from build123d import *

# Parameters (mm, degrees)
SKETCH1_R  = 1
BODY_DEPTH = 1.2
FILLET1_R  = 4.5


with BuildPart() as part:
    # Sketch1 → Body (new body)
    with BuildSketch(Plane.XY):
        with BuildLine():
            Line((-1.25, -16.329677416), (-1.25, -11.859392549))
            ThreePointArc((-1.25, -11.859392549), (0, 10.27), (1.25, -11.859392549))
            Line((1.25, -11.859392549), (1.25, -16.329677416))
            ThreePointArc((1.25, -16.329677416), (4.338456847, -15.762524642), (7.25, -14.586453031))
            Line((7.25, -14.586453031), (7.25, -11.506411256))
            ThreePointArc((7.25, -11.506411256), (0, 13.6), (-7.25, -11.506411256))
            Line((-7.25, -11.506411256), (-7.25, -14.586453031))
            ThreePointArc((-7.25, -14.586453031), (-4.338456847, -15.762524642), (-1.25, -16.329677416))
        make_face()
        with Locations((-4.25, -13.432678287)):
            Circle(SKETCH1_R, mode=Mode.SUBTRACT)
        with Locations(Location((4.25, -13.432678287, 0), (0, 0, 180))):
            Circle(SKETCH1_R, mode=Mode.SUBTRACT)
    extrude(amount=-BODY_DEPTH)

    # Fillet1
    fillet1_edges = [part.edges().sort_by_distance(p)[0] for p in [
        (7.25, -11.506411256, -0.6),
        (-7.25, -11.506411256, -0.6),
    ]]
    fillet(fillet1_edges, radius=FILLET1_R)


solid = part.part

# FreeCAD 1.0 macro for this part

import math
import FreeCAD as App
import Part
import Sketcher

V = App.Vector
Q = App.Units.Quantity


def edges_at(feature, points):
    """Names of the edges that pass closest to the given points."""
    edges = feature.Shape.Edges
    near = lambda p: min(range(len(edges)), key=lambda i: edges[i].distToShape(Part.Vertex(*p))[0])
    return sorted({f"Edge{near(p) + 1}" for p in points})

doc = App.newDocument("Part")
params = doc.addObject("Spreadsheet::Sheet", "Params")
for row, (alias, value) in enumerate([
    ("sketch1_diameter", "2 mm"),
    ("sketch1_radius", "11.1 mm"),
    ("sketch1_radius2", "13.6 mm"),
    ("sketch1_radius3", "15.55 mm"),
    ("pad1_length", "1.2 mm"),
    ("fillet_radius", "4.5 mm"),
], start=1):
    params.set(f"A{row}", alias)
    params.set(f"B{row}", "=" + value)
    params.setAlias(f"B{row}", alias)

body = doc.addObject("PartDesign::Body", "Body")

# Sketch on XY plane
sketch1 = doc.addObject("Sketcher::SketchObject", "Sketch")
body.addObject(sketch1)
sketch1.AttachmentSupport = (doc.XY_Plane, [""])
sketch1.MapMode = "FlatFace"
sketch1.addGeometry(Part.LineSegment(V(-1.2, -16.3, 0), V(-1.2, -11.9, 0)), False)
sketch1.addGeometry(Part.ArcOfCircle(Part.Circle(V(0, -0.8, 0), V(0, 0, 1), 11.1), math.radians(-84), math.radians(264)), False)
sketch1.addGeometry(Part.LineSegment(V(1.2, -11.9, 0), V(1.2, -16.3, 0)), False)
sketch1.addGeometry(Part.ArcOfCircle(Part.Circle(V(0, -0.8, 0), V(0, 0, 1), 15.6), math.radians(-85), math.radians(-62)), False)
sketch1.addGeometry(Part.LineSegment(V(7.2, -14.6, 0), V(7.2, -11.5, 0)), False)
sketch1.addGeometry(Part.ArcOfCircle(Part.Circle(V(0, 0, 0), V(0, 0, 1), 13.6), math.radians(-58), math.radians(238)), False)
sketch1.addGeometry(Part.LineSegment(V(-7.2, -11.5, 0), V(-7.2, -14.6, 0)), False)
sketch1.addGeometry(Part.ArcOfCircle(Part.Circle(V(0, -0.8, 0), V(0, 0, 1), 15.6), math.radians(-118), math.radians(-95)), False)
sketch1.addGeometry(Part.Circle(V(-4.2, -13.4, 0), V(0, 0, 1), 1), False)
sketch1.addGeometry(Part.Circle(V(4.2, -13.4, 0), V(0, 0, 1), 1), False)
sketch1.addConstraint(Sketcher.Constraint("Coincident", 0, 2, 1, 2))
sketch1.addConstraint(Sketcher.Constraint("Coincident", 1, 1, 2, 1))
sketch1.addConstraint(Sketcher.Constraint("Coincident", 2, 2, 3, 1))
sketch1.addConstraint(Sketcher.Constraint("Coincident", 3, 2, 4, 1))
sketch1.addConstraint(Sketcher.Constraint("Coincident", 4, 2, 5, 1))
sketch1.addConstraint(Sketcher.Constraint("Coincident", 5, 2, 6, 1))
sketch1.addConstraint(Sketcher.Constraint("Coincident", 6, 2, 7, 1))
sketch1.addConstraint(Sketcher.Constraint("Coincident", 7, 2, 0, 1))
sketch1.addConstraint(Sketcher.Constraint("Vertical", 0))
sketch1.addConstraint(Sketcher.Constraint("Vertical", 2))
sketch1.addConstraint(Sketcher.Constraint("Vertical", 4))
sketch1.addConstraint(Sketcher.Constraint("Vertical", 6))
sketch1.addConstraint(Sketcher.Constraint("Coincident", 5, 3, -1, 1))
sketch1.addConstraint(Sketcher.Constraint("Coincident", 3, 3, 1, 3))
sketch1.addConstraint(Sketcher.Constraint("Coincident", 7, 3, 1, 3))
sketch1.addConstraint(Sketcher.Constraint("Equal", 3, 7))
sketch1.addConstraint(Sketcher.Constraint("Equal", 8, 9))
sketch1.addConstraint(Sketcher.Constraint("Symmetric", 8, 3, 9, 3, -2))
sketch1.addConstraint(Sketcher.Constraint("Symmetric", 0, 2, 1, 1, -2))
sketch1.addConstraint(Sketcher.Constraint("Horizontal", 4, 2, 5, 2))
sketch1.addConstraint(Sketcher.Constraint("Diameter", 8, Q("2 mm")))
sketch1.addConstraint(Sketcher.Constraint("Radius", 1, Q("11.1 mm")))
sketch1.addConstraint(Sketcher.Constraint("Radius", 5, Q("13.6 mm")))
sketch1.addConstraint(Sketcher.Constraint("Radius", 3, Q("15.55 mm")))
sketch1.addConstraint(Sketcher.Constraint("DistanceX", 8, 3, 0, 2, Q("3 mm")))
sketch1.addConstraint(Sketcher.Constraint("DistanceX", 9, 3, 3, 2, Q("3 mm")))
sketch1.addConstraint(Sketcher.Constraint("DistanceX", 8, 3, 9, 3, Q("8.5 mm")))
sketch1.addConstraint(Sketcher.Constraint("DistanceY", 1, 3, -1, 1, Q("0.83 mm")))
sketch1.addConstraint(Sketcher.Constraint("DistanceY", 2, 2, 9, 3, Q("2.896999 mm")))
sketch1.setExpression("Constraints[20]", "Params.sketch1_diameter")
sketch1.setExpression("Constraints[21]", "Params.sketch1_radius")
sketch1.setExpression("Constraints[22]", "Params.sketch1_radius2")
sketch1.setExpression("Constraints[23]", "Params.sketch1_radius3")
pad1 = doc.addObject("PartDesign::Pad", "Pad")
body.addObject(pad1)
pad1.Profile = sketch1
pad1.setExpression("Length", "Params.pad1_length")
pad1.Reversed = True
doc.recompute()

fillet = doc.addObject("PartDesign::Fillet", "Fillet")
body.addObject(fillet)
fillet.Base = (pad1, edges_at(pad1, [(7.25, -11.506, -0.6), (-7.25, -11.506, -0.6)]))
fillet.setExpression("Radius", "Params.fillet_radius")

doc.recompute()
